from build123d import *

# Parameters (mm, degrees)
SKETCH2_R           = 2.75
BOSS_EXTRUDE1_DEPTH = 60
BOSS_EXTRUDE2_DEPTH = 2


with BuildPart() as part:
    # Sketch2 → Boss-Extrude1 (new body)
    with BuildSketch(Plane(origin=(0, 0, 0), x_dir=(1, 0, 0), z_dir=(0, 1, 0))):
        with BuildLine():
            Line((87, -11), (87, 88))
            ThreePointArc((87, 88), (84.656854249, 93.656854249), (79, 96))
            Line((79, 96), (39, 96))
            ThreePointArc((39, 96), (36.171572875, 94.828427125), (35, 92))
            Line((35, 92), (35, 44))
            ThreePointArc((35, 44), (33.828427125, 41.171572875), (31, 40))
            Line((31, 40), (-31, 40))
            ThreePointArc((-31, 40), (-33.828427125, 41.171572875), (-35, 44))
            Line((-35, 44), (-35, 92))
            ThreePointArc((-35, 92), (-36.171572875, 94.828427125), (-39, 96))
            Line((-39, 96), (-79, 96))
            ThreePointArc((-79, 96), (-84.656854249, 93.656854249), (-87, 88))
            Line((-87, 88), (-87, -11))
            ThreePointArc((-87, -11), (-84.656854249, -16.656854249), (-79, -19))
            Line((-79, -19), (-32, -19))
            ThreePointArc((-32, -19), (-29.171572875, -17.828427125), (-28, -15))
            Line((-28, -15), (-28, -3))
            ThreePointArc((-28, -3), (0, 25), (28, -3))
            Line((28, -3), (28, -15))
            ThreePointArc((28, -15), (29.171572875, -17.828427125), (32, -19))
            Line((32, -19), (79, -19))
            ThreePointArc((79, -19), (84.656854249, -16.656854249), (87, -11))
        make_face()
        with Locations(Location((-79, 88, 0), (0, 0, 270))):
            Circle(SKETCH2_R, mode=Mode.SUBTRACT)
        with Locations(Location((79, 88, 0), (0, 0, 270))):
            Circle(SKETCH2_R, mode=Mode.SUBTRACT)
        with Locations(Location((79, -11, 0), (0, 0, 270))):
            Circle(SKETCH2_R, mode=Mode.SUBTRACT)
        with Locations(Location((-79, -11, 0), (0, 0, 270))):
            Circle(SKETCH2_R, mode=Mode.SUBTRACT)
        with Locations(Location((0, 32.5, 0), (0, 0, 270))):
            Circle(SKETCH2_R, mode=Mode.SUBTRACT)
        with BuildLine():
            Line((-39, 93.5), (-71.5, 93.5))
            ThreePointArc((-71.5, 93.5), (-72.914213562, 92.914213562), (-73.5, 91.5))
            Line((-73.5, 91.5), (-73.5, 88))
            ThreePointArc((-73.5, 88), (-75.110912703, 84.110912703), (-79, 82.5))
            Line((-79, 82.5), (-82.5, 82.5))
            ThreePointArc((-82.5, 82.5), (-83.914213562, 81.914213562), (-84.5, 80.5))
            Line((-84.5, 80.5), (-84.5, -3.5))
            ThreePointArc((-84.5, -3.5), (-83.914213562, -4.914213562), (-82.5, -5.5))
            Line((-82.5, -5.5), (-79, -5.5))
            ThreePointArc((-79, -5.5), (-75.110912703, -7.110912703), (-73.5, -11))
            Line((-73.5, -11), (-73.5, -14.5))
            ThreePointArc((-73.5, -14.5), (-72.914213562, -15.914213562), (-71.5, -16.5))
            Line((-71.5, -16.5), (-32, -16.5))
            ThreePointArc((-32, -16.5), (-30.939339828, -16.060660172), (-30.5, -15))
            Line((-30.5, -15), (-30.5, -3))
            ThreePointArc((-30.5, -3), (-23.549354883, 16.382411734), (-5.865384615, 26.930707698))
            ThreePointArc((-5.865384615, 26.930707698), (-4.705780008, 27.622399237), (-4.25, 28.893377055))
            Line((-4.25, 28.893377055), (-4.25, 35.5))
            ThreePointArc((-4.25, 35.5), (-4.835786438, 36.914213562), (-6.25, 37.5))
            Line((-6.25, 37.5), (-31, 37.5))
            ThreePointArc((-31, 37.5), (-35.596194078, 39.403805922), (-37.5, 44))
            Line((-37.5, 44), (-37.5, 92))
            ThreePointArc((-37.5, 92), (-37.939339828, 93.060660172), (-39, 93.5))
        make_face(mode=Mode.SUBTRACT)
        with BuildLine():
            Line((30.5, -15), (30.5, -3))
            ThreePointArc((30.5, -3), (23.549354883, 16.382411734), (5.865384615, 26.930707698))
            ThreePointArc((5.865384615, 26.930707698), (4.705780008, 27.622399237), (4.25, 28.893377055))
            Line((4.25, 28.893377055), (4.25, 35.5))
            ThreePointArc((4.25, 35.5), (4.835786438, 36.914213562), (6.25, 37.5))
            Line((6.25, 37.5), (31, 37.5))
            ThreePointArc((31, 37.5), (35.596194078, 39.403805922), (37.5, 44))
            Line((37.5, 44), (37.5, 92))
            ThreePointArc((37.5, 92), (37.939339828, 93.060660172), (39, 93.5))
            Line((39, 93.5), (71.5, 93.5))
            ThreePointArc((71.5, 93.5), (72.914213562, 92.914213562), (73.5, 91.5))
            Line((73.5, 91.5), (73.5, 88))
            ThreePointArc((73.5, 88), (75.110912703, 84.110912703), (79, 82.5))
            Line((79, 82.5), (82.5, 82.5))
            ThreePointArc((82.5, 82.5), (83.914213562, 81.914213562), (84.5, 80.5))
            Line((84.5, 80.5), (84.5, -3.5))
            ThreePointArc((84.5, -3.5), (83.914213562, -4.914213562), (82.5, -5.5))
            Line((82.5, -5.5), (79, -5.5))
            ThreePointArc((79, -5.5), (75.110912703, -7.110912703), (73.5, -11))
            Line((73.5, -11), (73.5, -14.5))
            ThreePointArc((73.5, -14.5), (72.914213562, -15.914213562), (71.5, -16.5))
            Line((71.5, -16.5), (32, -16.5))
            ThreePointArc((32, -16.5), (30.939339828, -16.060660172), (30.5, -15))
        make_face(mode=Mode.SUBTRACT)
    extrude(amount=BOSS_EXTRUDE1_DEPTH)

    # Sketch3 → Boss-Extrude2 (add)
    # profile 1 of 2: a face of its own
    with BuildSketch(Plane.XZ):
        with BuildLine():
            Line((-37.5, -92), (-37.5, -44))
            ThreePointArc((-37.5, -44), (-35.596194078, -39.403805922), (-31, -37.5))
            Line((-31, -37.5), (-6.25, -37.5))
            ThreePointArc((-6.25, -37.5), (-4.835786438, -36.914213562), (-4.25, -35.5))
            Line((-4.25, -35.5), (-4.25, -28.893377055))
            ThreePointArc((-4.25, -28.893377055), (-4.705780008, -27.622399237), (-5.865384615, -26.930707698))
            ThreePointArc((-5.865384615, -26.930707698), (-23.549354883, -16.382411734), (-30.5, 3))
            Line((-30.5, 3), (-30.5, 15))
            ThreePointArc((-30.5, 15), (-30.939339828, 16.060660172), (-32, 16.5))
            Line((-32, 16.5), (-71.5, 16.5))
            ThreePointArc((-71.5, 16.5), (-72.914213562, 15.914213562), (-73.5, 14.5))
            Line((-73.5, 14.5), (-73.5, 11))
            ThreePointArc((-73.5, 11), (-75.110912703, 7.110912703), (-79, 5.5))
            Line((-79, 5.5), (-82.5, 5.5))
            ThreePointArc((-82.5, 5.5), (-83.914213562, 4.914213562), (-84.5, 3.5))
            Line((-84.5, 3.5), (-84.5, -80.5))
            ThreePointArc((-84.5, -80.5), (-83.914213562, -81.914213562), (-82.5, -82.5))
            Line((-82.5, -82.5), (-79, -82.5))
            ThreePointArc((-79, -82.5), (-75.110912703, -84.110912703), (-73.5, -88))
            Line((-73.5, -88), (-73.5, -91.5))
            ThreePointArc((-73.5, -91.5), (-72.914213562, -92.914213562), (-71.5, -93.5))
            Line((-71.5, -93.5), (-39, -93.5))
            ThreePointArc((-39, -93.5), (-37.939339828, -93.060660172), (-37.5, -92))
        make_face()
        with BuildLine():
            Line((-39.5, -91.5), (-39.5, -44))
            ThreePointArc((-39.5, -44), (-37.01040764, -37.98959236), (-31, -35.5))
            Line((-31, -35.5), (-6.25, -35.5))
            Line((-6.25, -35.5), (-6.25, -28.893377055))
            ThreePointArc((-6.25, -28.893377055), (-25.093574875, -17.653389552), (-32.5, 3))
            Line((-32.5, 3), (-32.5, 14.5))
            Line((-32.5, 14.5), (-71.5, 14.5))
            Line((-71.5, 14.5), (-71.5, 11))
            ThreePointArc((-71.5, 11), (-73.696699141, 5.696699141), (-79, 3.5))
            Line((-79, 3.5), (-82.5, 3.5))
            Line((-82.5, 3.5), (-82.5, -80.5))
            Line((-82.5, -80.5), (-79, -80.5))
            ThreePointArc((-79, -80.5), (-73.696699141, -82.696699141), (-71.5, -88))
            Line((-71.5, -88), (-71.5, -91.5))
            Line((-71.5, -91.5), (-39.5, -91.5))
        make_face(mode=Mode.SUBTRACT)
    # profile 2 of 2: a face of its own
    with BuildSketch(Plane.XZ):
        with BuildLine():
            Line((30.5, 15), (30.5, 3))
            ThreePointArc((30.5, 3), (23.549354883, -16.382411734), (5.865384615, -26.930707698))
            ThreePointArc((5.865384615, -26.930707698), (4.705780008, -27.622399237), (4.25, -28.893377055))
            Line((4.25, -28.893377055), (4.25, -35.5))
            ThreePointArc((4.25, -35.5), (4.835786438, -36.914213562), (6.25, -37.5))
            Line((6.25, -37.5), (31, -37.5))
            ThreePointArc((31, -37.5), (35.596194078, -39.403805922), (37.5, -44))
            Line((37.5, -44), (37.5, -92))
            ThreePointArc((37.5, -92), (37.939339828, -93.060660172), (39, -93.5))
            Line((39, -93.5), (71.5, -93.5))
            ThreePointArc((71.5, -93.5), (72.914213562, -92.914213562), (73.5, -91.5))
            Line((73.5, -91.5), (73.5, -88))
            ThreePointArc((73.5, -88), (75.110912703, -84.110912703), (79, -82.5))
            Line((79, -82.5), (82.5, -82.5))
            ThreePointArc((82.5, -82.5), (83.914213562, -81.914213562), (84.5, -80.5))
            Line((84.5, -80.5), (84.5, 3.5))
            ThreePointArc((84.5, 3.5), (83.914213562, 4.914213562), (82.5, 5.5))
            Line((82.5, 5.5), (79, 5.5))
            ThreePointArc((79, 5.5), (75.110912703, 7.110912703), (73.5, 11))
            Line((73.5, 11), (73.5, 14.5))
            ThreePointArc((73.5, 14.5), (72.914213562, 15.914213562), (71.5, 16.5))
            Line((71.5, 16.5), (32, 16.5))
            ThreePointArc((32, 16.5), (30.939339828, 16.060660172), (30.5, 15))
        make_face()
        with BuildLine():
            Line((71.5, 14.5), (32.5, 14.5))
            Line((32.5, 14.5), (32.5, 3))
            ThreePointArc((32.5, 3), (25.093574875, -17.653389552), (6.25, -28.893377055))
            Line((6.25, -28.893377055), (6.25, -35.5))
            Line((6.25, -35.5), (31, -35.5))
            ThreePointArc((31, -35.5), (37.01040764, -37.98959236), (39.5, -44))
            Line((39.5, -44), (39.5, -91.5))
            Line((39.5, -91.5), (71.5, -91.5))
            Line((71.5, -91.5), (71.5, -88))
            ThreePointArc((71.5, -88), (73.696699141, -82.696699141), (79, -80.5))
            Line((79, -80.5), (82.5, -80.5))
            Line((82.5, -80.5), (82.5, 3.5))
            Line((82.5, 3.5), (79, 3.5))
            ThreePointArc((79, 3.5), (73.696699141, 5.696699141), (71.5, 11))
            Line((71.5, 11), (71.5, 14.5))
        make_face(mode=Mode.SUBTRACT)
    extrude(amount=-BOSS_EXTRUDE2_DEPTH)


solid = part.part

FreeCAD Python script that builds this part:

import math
import FreeCAD as App
import Part
import Sketcher

doc = App.newDocument("Part")
body = doc.addObject("PartDesign::Body", "Body")

# Sketch on XZ plane
sketch1 = doc.addObject("Sketcher::SketchObject", "Sketch")
body.addObject(sketch1)
sketch1.AttachmentSupport = (doc.XZ_Plane, [""])
sketch1.MapMode = "FlatFace"
sketch1.addGeometry([
    Part.LineSegment(App.Vector(87, 11, 0), App.Vector(87, -88, 0)),  # 0
    Part.ArcOfCircle(Part.Circle(App.Vector(79, -88, 0), App.Vector(0, 0, 1), 8), math.radians(-90), math.radians(0)),  # 1
    Part.LineSegment(App.Vector(79, -96, 0), App.Vector(39, -96, 0)),  # 2
    Part.ArcOfCircle(Part.Circle(App.Vector(39, -92, 0), App.Vector(0, 0, 1), 4), math.radians(180), math.radians(270)),  # 3
    Part.LineSegment(App.Vector(35, -92, 0), App.Vector(35, -44, 0)),  # 4
    Part.ArcOfCircle(Part.Circle(App.Vector(31, -44, 0), App.Vector(0, 0, 1), 4), math.radians(0), math.radians(90)),  # 5
    Part.LineSegment(App.Vector(31, -40, 0), App.Vector(-31, -40, 0)),  # 6
    Part.ArcOfCircle(Part.Circle(App.Vector(-31, -44, 0), App.Vector(0, 0, 1), 4), math.radians(90), math.radians(180)),  # 7
    Part.LineSegment(App.Vector(-35, -44, 0), App.Vector(-35, -92, 0)),  # 8
    Part.ArcOfCircle(Part.Circle(App.Vector(-39, -92, 0), App.Vector(0, 0, 1), 4), math.radians(-90), math.radians(0)),  # 9
    Part.LineSegment(App.Vector(-39, -96, 0), App.Vector(-79, -96, 0)),  # 10
    Part.ArcOfCircle(Part.Circle(App.Vector(-79, -88, 0), App.Vector(0, 0, 1), 8), math.radians(-180), math.radians(-90)),  # 11
    Part.LineSegment(App.Vector(-87, -88, 0), App.Vector(-87, 11, 0)),  # 12
    Part.ArcOfCircle(Part.Circle(App.Vector(-79, 11, 0), App.Vector(0, 0, 1), 8), math.radians(90), math.radians(180)),  # 13
    Part.LineSegment(App.Vector(-79, 19, 0), App.Vector(-32, 19, 0)),  # 14
    Part.ArcOfCircle(Part.Circle(App.Vector(-32, 15, 0), App.Vector(0, 0, 1), 4), math.radians(0), math.radians(90)),  # 15
    Part.LineSegment(App.Vector(-28, 15, 0), App.Vector(-28, 3, 0)),  # 16
    Part.ArcOfCircle(Part.Circle(App.Vector(0, 3, 0), App.Vector(0, 0, 1), 28), math.radians(180), math.radians(360)),  # 17
    Part.LineSegment(App.Vector(28, 3, 0), App.Vector(28, 15, 0)),  # 18
    Part.ArcOfCircle(Part.Circle(App.Vector(32, 15, 0), App.Vector(0, 0, 1), 4), math.radians(90), math.radians(180)),  # 19
    Part.LineSegment(App.Vector(32, 19, 0), App.Vector(79, 19, 0)),  # 20
    Part.ArcOfCircle(Part.Circle(App.Vector(79, 11, 0), App.Vector(0, 0, 1), 8), math.radians(0), math.radians(90)),  # 21
    Part.Circle(App.Vector(-79, 11, 0), App.Vector(0, 0, 1), 2.8),  # 22
    Part.Circle(App.Vector(79, 11, 0), App.Vector(0, 0, 1), 2.8),  # 23
    Part.Circle(App.Vector(0, -32.5, 0), App.Vector(0, 0, 1), 2.8),  # 24
    Part.LineSegment(App.Vector(-71.5, -93.5, 0), App.Vector(-39, -93.5, 0)),  # 25
    Part.ArcOfCircle(Part.Circle(App.Vector(-39, -92, 0), App.Vector(0, 0, 1), 1.5), math.radians(-90), math.radians(0)),  # 26
    Part.LineSegment(App.Vector(-37.5, -92, 0), App.Vector(-37.5, -44, 0)),  # 27
    Part.ArcOfCircle(Part.Circle(App.Vector(-31, -44, 0), App.Vector(0, 0, 1), 6.5), math.radians(90), math.radians(180)),  # 28
    Part.LineSegment(App.Vector(-31, -37.5, 0), App.Vector(-6.2, -37.5, 0)),  # 29
    Part.ArcOfCircle(Part.Circle(App.Vector(-6.3, -35.5, 0), App.Vector(0, 0, 1), 2), math.radians(-90), math.radians(0)),  # 30
    Part.LineSegment(App.Vector(-4.2, -35.5, 0), App.Vector(-4.2, -28.9, 0)),  # 31
    Part.ArcOfCircle(Part.Circle(App.Vector(-6.3, -28.9, 0), App.Vector(0, 0, 1), 2), math.radians(0), math.radians(79)),  # 32
    Part.ArcOfCircle(Part.Circle(App.Vector(0, 3, 0), App.Vector(0, 0, 1), 30.5), math.radians(180), math.radians(259)),  # 33
    Part.LineSegment(App.Vector(-30.5, 3, 0), App.Vector(-30.5, 15, 0)),  # 34
    Part.ArcOfCircle(Part.Circle(App.Vector(-32, 15, 0), App.Vector(0, 0, 1), 1.5), math.radians(0), math.radians(90)),  # 35
    Part.LineSegment(App.Vector(-32, 16.5, 0), App.Vector(-71.5, 16.5, 0)),  # 36
    Part.ArcOfCircle(Part.Circle(App.Vector(-71.5, 14.5, 0), App.Vector(0, 0, 1), 2), math.radians(90), math.radians(180)),  # 37
    Part.LineSegment(App.Vector(-73.5, 14.5, 0), App.Vector(-73.5, 11, 0)),  # 38
    Part.ArcOfCircle(Part.Circle(App.Vector(-79, 11, 0), App.Vector(0, 0, 1), 5.5), math.radians(-90), math.radians(0)),  # 39
    Part.LineSegment(App.Vector(-79, 5.5, 0), App.Vector(-82.5, 5.5, 0)),  # 40
    Part.ArcOfCircle(Part.Circle(App.Vector(-82.5, 3.5, 0), App.Vector(0, 0, 1), 2), math.radians(90), math.radians(180)),  # 41
    Part.LineSegment(App.Vector(-84.5, 3.5, 0), App.Vector(-84.5, -80.5, 0)),  # 42
    Part.ArcOfCircle(Part.Circle(App.Vector(-82.5, -80.5, 0), App.Vector(0, 0, 1), 2), math.radians(-180), math.radians(-90)),  # 43
    Part.LineSegment(App.Vector(-82.5, -82.5, 0), App.Vector(-79, -82.5, 0)),  # 44
    Part.ArcOfCircle(Part.Circle(App.Vector(-79, -88, 0), App.Vector(0, 0, 1), 5.5), math.radians(0), math.radians(90)),  # 45
    Part.LineSegment(App.Vector(-73.5, -88, 0), App.Vector(-73.5, -91.5, 0)),  # 46
    Part.ArcOfCircle(Part.Circle(App.Vector(-71.5, -91.5, 0), App.Vector(0, 0, 1), 2), math.radians(-180), math.radians(-90)),  # 47
    Part.Circle(App.Vector(-79, -88, 0), App.Vector(0, 0, 1), 2.8),  # 48
    Part.ArcOfCircle(Part.Circle(App.Vector(32, 15, 0), App.Vector(0, 0, 1), 1.5), math.radians(90), math.radians(180)),  # 49
    Part.LineSegment(App.Vector(30.5, 15, 0), App.Vector(30.5, 3, 0)),  # 50
    Part.ArcOfCircle(Part.Circle(App.Vector(0, 3, 0), App.Vector(0, 0, 1), 30.5), math.radians(-79), math.radians(0)),  # 51
    Part.ArcOfCircle(Part.Circle(App.Vector(6.3, -28.9, 0), App.Vector(0, 0, 1), 2), math.radians(101), math.radians(180)),  # 52
    Part.LineSegment(App.Vector(4.2, -28.9, 0), App.Vector(4.2, -35.5, 0)),  # 53
    Part.ArcOfCircle(Part.Circle(App.Vector(6.3, -35.5, 0), App.Vector(0, 0, 1), 2), math.radians(-180), math.radians(-90)),  # 54
    Part.LineSegment(App.Vector(6.2, -37.5, 0), App.Vector(31, -37.5, 0)),  # 55
    Part.ArcOfCircle(Part.Circle(App.Vector(31, -44, 0), App.Vector(0, 0, 1), 6.5), math.radians(0), math.radians(90)),  # 56
    Part.LineSegment(App.Vector(37.5, -44, 0), App.Vector(37.5, -92, 0)),  # 57
    Part.ArcOfCircle(Part.Circle(App.Vector(39, -92, 0), App.Vector(0, 0, 1), 1.5), math.radians(180), math.radians(270)),  # 58
    Part.LineSegment(App.Vector(39, -93.5, 0), App.Vector(71.5, -93.5, 0)),  # 59
    Part.ArcOfCircle(Part.Circle(App.Vector(71.5, -91.5, 0), App.Vector(0, 0, 1), 2), math.radians(-90), math.radians(0)),  # 60
    Part.LineSegment(App.Vector(73.5, -91.5, 0), App.Vector(73.5, -88, 0)),  # 61
    Part.ArcOfCircle(Part.Circle(App.Vector(79, -88, 0), App.Vector(0, 0, 1), 5.5), math.radians(90), math.radians(180)),  # 62
    Part.LineSegment(App.Vector(79, -82.5, 0), App.Vector(82.5, -82.5, 0)),  # 63
    Part.ArcOfCircle(Part.Circle(App.Vector(82.5, -80.5, 0), App.Vector(0, 0, 1), 2), math.radians(-90), math.radians(0)),  # 64
    Part.LineSegment(App.Vector(84.5, -80.5, 0), App.Vector(84.5, 3.5, 0)),  # 65
    Part.ArcOfCircle(Part.Circle(App.Vector(82.5, 3.5, 0), App.Vector(0, 0, 1), 2), math.radians(0), math.radians(90)),  # 66
    Part.LineSegment(App.Vector(82.5, 5.5, 0), App.Vector(79, 5.5, 0)),  # 67
    Part.ArcOfCircle(Part.Circle(App.Vector(79, 11, 0), App.Vector(0, 0, 1), 5.5), math.radians(180), math.radians(270)),  # 68
    Part.LineSegment(App.Vector(73.5, 11, 0), App.Vector(73.5, 14.5, 0)),  # 69
    Part.ArcOfCircle(Part.Circle(App.Vector(71.5, 14.5, 0), App.Vector(0, 0, 1), 2), math.radians(0), math.radians(90)),  # 70
    Part.LineSegment(App.Vector(71.5, 16.5, 0), App.Vector(32, 16.5, 0)),  # 71
    Part.Circle(App.Vector(79, -88, 0), App.Vector(0, 0, 1), 2.8),  # 72
], False)
sketch1.addConstraint([
    Sketcher.Constraint("Tangent", 0, 2, 1, 2),
    Sketcher.Constraint("Tangent", 1, 1, 2, 1),
    Sketcher.Constraint("Tangent", 2, 2, 3, 2),
    Sketcher.Constraint("Tangent", 3, 1, 4, 1),
    Sketcher.Constraint("Tangent", 4, 2, 5, 1),
    Sketcher.Constraint("Tangent", 5, 2, 6, 1),
    Sketcher.Constraint("Tangent", 6, 2, 7, 1),
    Sketcher.Constraint("Tangent", 7, 2, 8, 1),
    Sketcher.Constraint("Tangent", 8, 2, 9, 2),
    Sketcher.Constraint("Tangent", 9, 1, 10, 1),
    Sketcher.Constraint("Tangent", 10, 2, 11, 2),
    Sketcher.Constraint("Tangent", 11, 1, 12, 1),
    Sketcher.Constraint("Tangent", 12, 2, 13, 2),
    Sketcher.Constraint("Tangent", 13, 1, 14, 1),
    Sketcher.Constraint("Tangent", 14, 2, 15, 2),
    Sketcher.Constraint("Tangent", 15, 1, 16, 1),
    Sketcher.Constraint("Tangent", 16, 2, 17, 1),
    Sketcher.Constraint("Tangent", 17, 2, 18, 1),
    Sketcher.Constraint("Tangent", 18, 2, 19, 2),
    Sketcher.Constraint("Tangent", 19, 1, 20, 1),
    Sketcher.Constraint("Tangent", 20, 2, 21, 2),
    Sketcher.Constraint("Tangent", 21, 1, 0, 1),
    Sketcher.Constraint("Tangent", 25, 2, 26, 1),
    Sketcher.Constraint("Tangent", 26, 2, 27, 1),
    Sketcher.Constraint("Tangent", 27, 2, 28, 2),
    Sketcher.Constraint("Tangent", 28, 1, 29, 1),
    Sketcher.Constraint("Tangent", 29, 2, 30, 1),
    Sketcher.Constraint("Tangent", 30, 2, 31, 1),
    Sketcher.Constraint("Tangent", 31, 2, 32, 1),
    Sketcher.Constraint("Tangent", 32, 2, 33, 2),
    Sketcher.Constraint("Tangent", 33, 1, 34, 1),
    Sketcher.Constraint("Tangent", 34, 2, 35, 1),
    Sketcher.Constraint("Tangent", 35, 2, 36, 1),
    Sketcher.Constraint("Tangent", 36, 2, 37, 1),
    Sketcher.Constraint("Tangent", 37, 2, 38, 1),
    Sketcher.Constraint("Tangent", 38, 2, 39, 2),
    Sketcher.Constraint("Tangent", 39, 1, 40, 1),
    Sketcher.Constraint("Tangent", 40, 2, 41, 1),
    Sketcher.Constraint("Tangent", 41, 2, 42, 1),
    Sketcher.Constraint("Tangent", 42, 2, 43, 1),
    Sketcher.Constraint("Tangent", 43, 2, 44, 1),
    Sketcher.Constraint("Tangent", 44, 2, 45, 2),
    Sketcher.Constraint("Tangent", 45, 1, 46, 1),
    Sketcher.Constraint("Tangent", 46, 2, 47, 1),
    Sketcher.Constraint("Tangent", 47, 2, 25, 1),
    Sketcher.Constraint("Tangent", 49, 2, 50, 1),
    Sketcher.Constraint("Tangent", 50, 2, 51, 2),
    Sketcher.Constraint("Tangent", 51, 1, 52, 1),
    Sketcher.Constraint("Tangent", 52, 2, 53, 1),
    Sketcher.Constraint("Tangent", 53, 2, 54, 1),
    Sketcher.Constraint("Tangent", 54, 2, 55, 1),
    Sketcher.Constraint("Tangent", 55, 2, 56, 2),
    Sketcher.Constraint("Tangent", 56, 1, 57, 1),
    Sketcher.Constraint("Tangent", 57, 2, 58, 1),
    Sketcher.Constraint("Tangent", 58, 2, 59, 1),
    Sketcher.Constraint("Tangent", 59, 2, 60, 1),
    Sketcher.Constraint("Tangent", 60, 2, 61, 1),
    Sketcher.Constraint("Tangent", 61, 2, 62, 2),
    Sketcher.Constraint("Tangent", 62, 1, 63, 1),
    Sketcher.Constraint("Tangent", 63, 2, 64, 1),
    Sketcher.Constraint("Tangent", 64, 2, 65, 1),
    Sketcher.Constraint("Tangent", 65, 2, 66, 1),
    Sketcher.Constraint("Tangent", 66, 2, 67, 1),
    Sketcher.Constraint("Tangent", 67, 2, 68, 2),
    Sketcher.Constraint("Tangent", 68, 1, 69, 1),
    Sketcher.Constraint("Tangent", 69, 2, 70, 1),
    Sketcher.Constraint("Tangent", 70, 2, 71, 1),
    Sketcher.Constraint("Tangent", 71, 2, 49, 1),
    Sketcher.Constraint("Vertical", 0),
    Sketcher.Constraint("Horizontal", 2),
    Sketcher.Constraint("Vertical", 4),
    Sketcher.Constraint("Horizontal", 6),
    Sketcher.Constraint("Vertical", 8),
    Sketcher.Constraint("Horizontal", 10),
    Sketcher.Constraint("Vertical", 12),
    Sketcher.Constraint("Horizontal", 14),
    Sketcher.Constraint("Vertical", 16),
    Sketcher.Constraint("Vertical", 18),
    Sketcher.Constraint("Horizontal", 20),
    Sketcher.Constraint("Horizontal", 25),
    Sketcher.Constraint("Vertical", 27),
    Sketcher.Constraint("Horizontal", 29),
    Sketcher.Constraint("Vertical", 31),
    Sketcher.Constraint("Vertical", 34),
    Sketcher.Constraint("Horizontal", 36),
    Sketcher.Constraint("Vertical", 38),
    Sketcher.Constraint("Horizontal", 40),
    Sketcher.Constraint("Vertical", 42),
    Sketcher.Constraint("Horizontal", 44),
    Sketcher.Constraint("Vertical", 46),
    Sketcher.Constraint("Vertical", 50),
    Sketcher.Constraint("Vertical", 53),
    Sketcher.Constraint("Horizontal", 55),
    Sketcher.Constraint("Vertical", 57),
    Sketcher.Constraint("Horizontal", 59),
    Sketcher.Constraint("Vertical", 61),
    Sketcher.Constraint("Horizontal", 63),
    Sketcher.Constraint("Vertical", 65),
    Sketcher.Constraint("Horizontal", 67),
    Sketcher.Constraint("Vertical", 69),
    Sketcher.Constraint("Horizontal", 71),
    Sketcher.Constraint("Coincident", 22, 3, 13, 3),
    Sketcher.Constraint("Coincident", 23, 3, 21, 3),
    Sketcher.Constraint("Coincident", 26, 3, 9, 3),
    Sketcher.Constraint("Coincident", 28, 3, 7, 3),
    Sketcher.Constraint("Coincident", 33, 3, 17, 3),
    Sketcher.Constraint("Coincident", 35, 3, 15, 3),
    Sketcher.Constraint("Coincident", 39, 3, 13, 3),
    Sketcher.Constraint("Coincident", 45, 3, 11, 3),
    Sketcher.Constraint("Coincident", 48, 3, 11, 3),
    Sketcher.Constraint("Coincident", 49, 3, 19, 3),
    Sketcher.Constraint("Coincident", 51, 3, 17, 3),
    Sketcher.Constraint("Coincident", 56, 3, 5, 3),
    Sketcher.Constraint("Coincident", 58, 3, 3, 3),
    Sketcher.Constraint("Coincident", 62, 3, 1, 3),
    Sketcher.Constraint("Coincident", 68, 3, 21, 3),
    Sketcher.Constraint("Coincident", 72, 3, 1, 3),
    Sketcher.Constraint("Equal", 3, 5),
    Sketcher.Constraint("Equal", 5, 7),
    Sketcher.Constraint("Equal", 7, 9),
    Sketcher.Constraint("Equal", 1, 11),
    Sketcher.Constraint("Equal", 11, 13),
    Sketcher.Constraint("Equal", 9, 15),
    Sketcher.Constraint("Equal", 15, 19),
    Sketcher.Constraint("Equal", 13, 21),
    Sketcher.Constraint("Equal", 22, 23),
    Sketcher.Constraint("Equal", 23, 24),
    Sketcher.Constraint("Equal", 30, 32),
    Sketcher.Constraint("Equal", 26, 35),
    Sketcher.Constraint("Equal", 32, 37),
    Sketcher.Constraint("Equal", 37, 41),
    Sketcher.Constraint("Equal", 41, 43),
    Sketcher.Constraint("Equal", 39, 45),
    Sketcher.Constraint("Equal", 43, 47),
    Sketcher.Constraint("Equal", 24, 48),
    Sketcher.Constraint("Equal", 35, 49),
    Sketcher.Constraint("Equal", 47, 52),
    Sketcher.Constraint("Equal", 52, 54),
    Sketcher.Constraint("Equal", 28, 56),
    Sketcher.Constraint("Equal", 54, 60),
    Sketcher.Constraint("Equal", 45, 62),
    Sketcher.Constraint("Equal", 60, 64),
    Sketcher.Constraint("Equal", 64, 66),
    Sketcher.Constraint("Equal", 62, 68),
    Sketcher.Constraint("Equal", 66, 70),
    Sketcher.Constraint("Equal", 48, 72),
    Sketcher.Constraint("Symmetric", 3, 3, 9, 3, -2),
    Sketcher.Constraint("Symmetric", 15, 3, 19, 3, -2),
    Sketcher.Constraint("PointOnObject", 24, 3, -2),
    Sketcher.Constraint("Horizontal", 32, 3, 52, 3),
    Sketcher.Constraint("Equal", 2, 10),
    Sketcher.Constraint("Equal", 44, 63),
    Sketcher.Constraint("Equal", 67, 38),
    Sketcher.Constraint("Radius", 1, 8.0),
    Sketcher.Constraint("Radius", 3, 4.0),
    Sketcher.Constraint("Radius", 17, 28.0),
    Sketcher.Constraint("Radius", 30, 2.0),
    Sketcher.Constraint("Diameter", 22, 5.5),
    Sketcher.Constraint("Radius", 26, 1.5),
    Sketcher.Constraint("Radius", 39, 5.5),
    Sketcher.Constraint("DistanceX", 2, 2, 2, 1, 40.0),
    Sketcher.Constraint("DistanceX", 6, 2, 6, 1, 62.0),
    Sketcher.Constraint("DistanceY", 0, 2, 0, 1, 99.0),
    Sketcher.Constraint("DistanceY", 4, 1, 4, 2, 48.0),
    Sketcher.Constraint("DistanceY", 16, 2, 16, 1, 12.0),
    Sketcher.Constraint("DistanceY", 1, 3, -1, 1, 88.0),
    Sketcher.Constraint("DistanceX", 29, 1, 29, 2, 24.75),
    Sketcher.Constraint("DistanceY", 24, 3, -1, 1, 32.5),
])
pad1 = doc.addObject("PartDesign::Pad", "Pad")
body.addObject(pad1)
pad1.Profile = sketch1
pad1.Length = 60
pad1.Reversed = True

# Sketch on XZ plane
sketch2 = doc.addObject("Sketcher::SketchObject", "Sketch001")
body.addObject(sketch2)
sketch2.AttachmentSupport = (doc.XZ_Plane, [""])
sketch2.MapMode = "FlatFace"
sketch2.addGeometry([
    Part.LineSegment(App.Vector(-37.5, -92, 0), App.Vector(-37.5, -44, 0)),  # 0
    Part.ArcOfCircle(Part.Circle(App.Vector(-31, -44, 0), App.Vector(0, 0, 1), 6.5), math.radians(90), math.radians(180)),  # 1
    Part.LineSegment(App.Vector(-31, -37.5, 0), App.Vector(-6.2, -37.5, 0)),  # 2
    Part.ArcOfCircle(Part.Circle(App.Vector(-6.3, -35.5, 0), App.Vector(0, 0, 1), 2), math.radians(-90), math.radians(0)),  # 3
    Part.LineSegment(App.Vector(-4.2, -35.5, 0), App.Vector(-4.2, -28.9, 0)),  # 4
    Part.ArcOfCircle(Part.Circle(App.Vector(-6.3, -28.9, 0), App.Vector(0, 0, 1), 2), math.radians(0), math.radians(79)),  # 5
    Part.ArcOfCircle(Part.Circle(App.Vector(0, 3, 0), App.Vector(0, 0, 1), 30.5), math.radians(180), math.radians(259)),  # 6
    Part.LineSegment(App.Vector(-30.5, 3, 0), App.Vector(-30.5, 15, 0)),  # 7
    Part.ArcOfCircle(Part.Circle(App.Vector(-32, 15, 0), App.Vector(0, 0, 1), 1.5), math.radians(0), math.radians(90)),  # 8
    Part.LineSegment(App.Vector(-32, 16.5, 0), App.Vector(-71.5, 16.5, 0)),  # 9
    Part.ArcOfCircle(Part.Circle(App.Vector(-71.5, 14.5, 0), App.Vector(0, 0, 1), 2), math.radians(90), math.radians(180)),  # 10
    Part.LineSegment(App.Vector(-73.5, 14.5, 0), App.Vector(-73.5, 11, 0)),  # 11
    Part.ArcOfCircle(Part.Circle(App.Vector(-79, 11, 0), App.Vector(0, 0, 1), 5.5), math.radians(-90), math.radians(0)),  # 12
    Part.LineSegment(App.Vector(-79, 5.5, 0), App.Vector(-82.5, 5.5, 0)),  # 13
    Part.ArcOfCircle(Part.Circle(App.Vector(-82.5, 3.5, 0), App.Vector(0, 0, 1), 2), math.radians(90), math.radians(180)),  # 14
    Part.LineSegment(App.Vector(-84.5, 3.5, 0), App.Vector(-84.5, -80.5, 0)),  # 15
    Part.ArcOfCircle(Part.Circle(App.Vector(-82.5, -80.5, 0), App.Vector(0, 0, 1), 2), math.radians(-180), math.radians(-90)),  # 16
    Part.LineSegment(App.Vector(-82.5, -82.5, 0), App.Vector(-79, -82.5, 0)),  # 17
    Part.ArcOfCircle(Part.Circle(App.Vector(-79, -88, 0), App.Vector(0, 0, 1), 5.5), math.radians(0), math.radians(90)),  # 18
    Part.LineSegment(App.Vector(-73.5, -88, 0), App.Vector(-73.5, -91.5, 0)),  # 19
    Part.ArcOfCircle(Part.Circle(App.Vector(-71.5, -91.5, 0), App.Vector(0, 0, 1), 2), math.radians(-180), math.radians(-90)),  # 20
    Part.LineSegment(App.Vector(-71.5, -93.5, 0), App.Vector(-39, -93.5, 0)),  # 21
    Part.ArcOfCircle(Part.Circle(App.Vector(-39, -92, 0), App.Vector(0, 0, 1), 1.5), math.radians(-90), math.radians(0)),  # 22
    Part.LineSegment(App.Vector(-39.5, -44, 0), App.Vector(-39.5, -91.5, 0)),  # 23
    Part.LineSegment(App.Vector(-39.5, -91.5, 0), App.Vector(-71.5, -91.5, 0)),  # 24
    Part.LineSegment(App.Vector(-71.5, -91.5, 0), App.Vector(-71.5, -88, 0)),  # 25
    Part.ArcOfCircle(Part.Circle(App.Vector(-79, -88, 0), App.Vector(0, 0, 1), 7.5), math.radians(0), math.radians(90)),  # 26
    Part.LineSegment(App.Vector(-79, -80.5, 0), App.Vector(-82.5, -80.5, 0)),  # 27
    Part.LineSegment(App.Vector(-82.5, -80.5, 0), App.Vector(-82.5, 3.5, 0)),  # 28
    Part.LineSegment(App.Vector(-82.5, 3.5, 0), App.Vector(-79, 3.5, 0)),  # 29
    Part.ArcOfCircle(Part.Circle(App.Vector(-79, 11, 0), App.Vector(0, 0, 1), 7.5), math.radians(-90), math.radians(0)),  # 30
    Part.LineSegment(App.Vector(-71.5, 11, 0), App.Vector(-71.5, 14.5, 0)),  # 31
    Part.LineSegment(App.Vector(-71.5, 14.5, 0), App.Vector(-32.5, 14.5, 0)),  # 32
    Part.LineSegment(App.Vector(-32.5, 14.5, 0), App.Vector(-32.5, 3, 0)),  # 33
    Part.ArcOfCircle(Part.Circle(App.Vector(0, 3, 0), App.Vector(0, 0, 1), 32.5), math.radians(180), math.radians(259)),  # 34
    Part.LineSegment(App.Vector(-6.2, -28.9, 0), App.Vector(-6.2, -35.5, 0)),  # 35
    Part.LineSegment(App.Vector(-6.2, -35.5, 0), App.Vector(-31, -35.5, 0)),  # 36
    Part.ArcOfCircle(Part.Circle(App.Vector(-31, -44, 0), App.Vector(0, 0, 1), 8.5), math.radians(90), math.radians(180)),  # 37
    Part.LineSegment(App.Vector(30.5, 15, 0), App.Vector(30.5, 3, 0)),  # 38
    Part.ArcOfCircle(Part.Circle(App.Vector(0, 3, 0), App.Vector(0, 0, 1), 30.5), math.radians(-79), math.radians(0)),  # 39
    Part.ArcOfCircle(Part.Circle(App.Vector(6.3, -28.9, 0), App.Vector(0, 0, 1), 2), math.radians(101), math.radians(180)),  # 40
    Part.LineSegment(App.Vector(4.2, -28.9, 0), App.Vector(4.2, -35.5, 0)),  # 41
    Part.ArcOfCircle(Part.Circle(App.Vector(6.3, -35.5, 0), App.Vector(0, 0, 1), 2), math.radians(-180), math.radians(-90)),  # 42
    Part.LineSegment(App.Vector(6.2, -37.5, 0), App.Vector(31, -37.5, 0)),  # 43
    Part.ArcOfCircle(Part.Circle(App.Vector(31, -44, 0), App.Vector(0, 0, 1), 6.5), math.radians(0), math.radians(90)),  # 44
    Part.LineSegment(App.Vector(37.5, -44, 0), App.Vector(37.5, -92, 0)),  # 45
    Part.ArcOfCircle(Part.Circle(App.Vector(39, -92, 0), App.Vector(0, 0, 1), 1.5), math.radians(180), math.radians(270)),  # 46
    Part.LineSegment(App.Vector(39, -93.5, 0), App.Vector(71.5, -93.5, 0)),  # 47
    Part.ArcOfCircle(Part.Circle(App.Vector(71.5, -91.5, 0), App.Vector(0, 0, 1), 2), math.radians(-90), math.radians(0)),  # 48
    Part.LineSegment(App.Vector(73.5, -91.5, 0), App.Vector(73.5, -88, 0)),  # 49
    Part.ArcOfCircle(Part.Circle(App.Vector(79, -88, 0), App.Vector(0, 0, 1), 5.5), math.radians(90), math.radians(180)),  # 50
    Part.LineSegment(App.Vector(79, -82.5, 0), App.Vector(82.5, -82.5, 0)),  # 51
    Part.ArcOfCircle(Part.Circle(App.Vector(82.5, -80.5, 0), App.Vector(0, 0, 1), 2), math.radians(-90), math.radians(0)),  # 52
    Part.LineSegment(App.Vector(84.5, -80.5, 0), App.Vector(84.5, 3.5, 0)),  # 53
    Part.ArcOfCircle(Part.Circle(App.Vector(82.5, 3.5, 0), App.Vector(0, 0, 1), 2), math.radians(0), math.radians(90)),  # 54
    Part.LineSegment(App.Vector(82.5, 5.5, 0), App.Vector(79, 5.5, 0)),  # 55
    Part.ArcOfCircle(Part.Circle(App.Vector(79, 11, 0), App.Vector(0, 0, 1), 5.5), math.radians(180), math.radians(270)),  # 56
    Part.LineSegment(App.Vector(73.5, 11, 0), App.Vector(73.5, 14.5, 0)),  # 57
    Part.ArcOfCircle(Part.Circle(App.Vector(71.5, 14.5, 0), App.Vector(0, 0, 1), 2), math.radians(0), math.radians(90)),  # 58
    Part.LineSegment(App.Vector(71.5, 16.5, 0), App.Vector(32, 16.5, 0)),  # 59
    Part.ArcOfCircle(Part.Circle(App.Vector(32, 15, 0), App.Vector(0, 0, 1), 1.5), math.radians(90), math.radians(180)),  # 60
    Part.LineSegment(App.Vector(32.5, 14.5, 0), App.Vector(71.5, 14.5, 0)),  # 61
    Part.LineSegment(App.Vector(71.5, 14.5, 0), App.Vector(71.5, 11, 0)),  # 62
    Part.ArcOfCircle(Part.Circle(App.Vector(79, 11, 0), App.Vector(0, 0, 1), 7.5), math.radians(180), math.radians(270)),  # 63
    Part.LineSegment(App.Vector(79, 3.5, 0), App.Vector(82.5, 3.5, 0)),  # 64
    Part.LineSegment(App.Vector(82.5, 3.5, 0), App.Vector(82.5, -80.5, 0)),  # 65
    Part.LineSegment(App.Vector(82.5, -80.5, 0), App.Vector(79, -80.5, 0)),  # 66
    Part.ArcOfCircle(Part.Circle(App.Vector(79, -88, 0), App.Vector(0, 0, 1), 7.5), math.radians(90), math.radians(180)),  # 67
    Part.LineSegment(App.Vector(71.5, -88, 0), App.Vector(71.5, -91.5, 0)),  # 68
    Part.LineSegment(App.Vector(71.5, -91.5, 0), App.Vector(39.5, -91.5, 0)),  # 69
    Part.LineSegment(App.Vector(39.5, -91.5, 0), App.Vector(39.5, -44, 0)),  # 70
    Part.ArcOfCircle(Part.Circle(App.Vector(31, -44, 0), App.Vector(0, 0, 1), 8.5), math.radians(0), math.radians(90)),  # 71
    Part.LineSegment(App.Vector(31, -35.5, 0), App.Vector(6.2, -35.5, 0)),  # 72
    Part.LineSegment(App.Vector(6.2, -35.5, 0), App.Vector(6.2, -28.9, 0)),  # 73
    Part.ArcOfCircle(Part.Circle(App.Vector(0, 3, 0), App.Vector(0, 0, 1), 32.5), math.radians(-79), math.radians(0)),  # 74
    Part.LineSegment(App.Vector(32.5, 3, 0), App.Vector(32.5, 14.5, 0)),  # 75
], False)
sketch2.addConstraint([
    Sketcher.Constraint("Tangent", 0, 2, 1, 2),
    Sketcher.Constraint("Tangent", 1, 1, 2, 1),
    Sketcher.Constraint("Tangent", 2, 2, 3, 1),
    Sketcher.Constraint("Tangent", 3, 2, 4, 1),
    Sketcher.Constraint("Tangent", 4, 2, 5, 1),
    Sketcher.Constraint("Tangent", 5, 2, 6, 2),
    Sketcher.Constraint("Tangent", 6, 1, 7, 1),
    Sketcher.Constraint("Tangent", 7, 2, 8, 1),
    Sketcher.Constraint("Tangent", 8, 2, 9, 1),
    Sketcher.Constraint("Tangent", 9, 2, 10, 1),
    Sketcher.Constraint("Tangent", 10, 2, 11, 1),
    Sketcher.Constraint("Tangent", 11, 2, 12, 2),
    Sketcher.Constraint("Tangent", 12, 1, 13, 1),
    Sketcher.Constraint("Tangent", 13, 2, 14, 1),
    Sketcher.Constraint("Tangent", 14, 2, 15, 1),
    Sketcher.Constraint("Tangent", 15, 2, 16, 1),
    Sketcher.Constraint("Tangent", 16, 2, 17, 1),
    Sketcher.Constraint("Tangent", 17, 2, 18, 2),
    Sketcher.Constraint("Tangent", 18, 1, 19, 1),
    Sketcher.Constraint("Tangent", 19, 2, 20, 1),
    Sketcher.Constraint("Tangent", 20, 2, 21, 1),
    Sketcher.Constraint("Tangent", 21, 2, 22, 1),
    Sketcher.Constraint("Tangent", 22, 2, 0, 1),
    Sketcher.Constraint("Coincident", 23, 2, 24, 1),
    Sketcher.Constraint("Coincident", 24, 2, 25, 1),
    Sketcher.Constraint("Tangent", 25, 2, 26, 1),
    Sketcher.Constraint("Tangent", 26, 2, 27, 1),
    Sketcher.Constraint("Coincident", 27, 2, 28, 1),
    Sketcher.Constraint("Coincident", 28, 2, 29, 1),
    Sketcher.Constraint("Tangent", 29, 2, 30, 1),
    Sketcher.Constraint("Tangent", 30, 2, 31, 1),
    Sketcher.Constraint("Coincident", 31, 2, 32, 1),
    Sketcher.Constraint("Coincident", 32, 2, 33, 1),
    Sketcher.Constraint("Tangent", 33, 2, 34, 1),
    Sketcher.Constraint("Coincident", 34, 2, 35, 1),
    Sketcher.Constraint("Coincident", 35, 2, 36, 1),
    Sketcher.Constraint("Tangent", 36, 2, 37, 1),
    Sketcher.Constraint("Tangent", 37, 2, 23, 1),
    Sketcher.Constraint("Tangent", 38, 2, 39, 2),
    Sketcher.Constraint("Tangent", 39, 1, 40, 1),
    Sketcher.Constraint("Tangent", 40, 2, 41, 1),
    Sketcher.Constraint("Tangent", 41, 2, 42, 1),
    Sketcher.Constraint("Tangent", 42, 2, 43, 1),
    Sketcher.Constraint("Tangent", 43, 2, 44, 2),
    Sketcher.Constraint("Tangent", 44, 1, 45, 1),
    Sketcher.Constraint("Tangent", 45, 2, 46, 1),
    Sketcher.Constraint("Tangent", 46, 2, 47, 1),
    Sketcher.Constraint("Tangent", 47, 2, 48, 1),
    Sketcher.Constraint("Tangent", 48, 2, 49, 1),
    Sketcher.Constraint("Tangent", 49, 2, 50, 2),
    Sketcher.Constraint("Tangent", 50, 1, 51, 1),
    Sketcher.Constraint("Tangent", 51, 2, 52, 1),
    Sketcher.Constraint("Tangent", 52, 2, 53, 1),
    Sketcher.Constraint("Tangent", 53, 2, 54, 1),
    Sketcher.Constraint("Tangent", 54, 2, 55, 1),
    Sketcher.Constraint("Tangent", 55, 2, 56, 2),
    Sketcher.Constraint("Tangent", 56, 1, 57, 1),
    Sketcher.Constraint("Tangent", 57, 2, 58, 1),
    Sketcher.Constraint("Tangent", 58, 2, 59, 1),
    Sketcher.Constraint("Tangent", 59, 2, 60, 1),
    Sketcher.Constraint("Tangent", 60, 2, 38, 1),
    Sketcher.Constraint("Coincident", 61, 2, 62, 1),
    Sketcher.Constraint("Tangent", 62, 2, 63, 1),
    Sketcher.Constraint("Tangent", 63, 2, 64, 1),
    Sketcher.Constraint("Coincident", 64, 2, 65, 1),
    Sketcher.Constraint("Coincident", 65, 2, 66, 1),
    Sketcher.Constraint("Tangent", 66, 2, 67, 1),
    Sketcher.Constraint("Tangent", 67, 2, 68, 1),
    Sketcher.Constraint("Coincident", 68, 2, 69, 1),
    Sketcher.Constraint("Coincident", 69, 2, 70, 1),
    Sketcher.Constraint("Tangent", 70, 2, 71, 1),
    Sketcher.Constraint("Tangent", 71, 2, 72, 1),
    Sketcher.Constraint("Coincident", 72, 2, 73, 1),
    Sketcher.Constraint("Coincident", 73, 2, 74, 1),
    Sketcher.Constraint("Tangent", 74, 2, 75, 1),
    Sketcher.Constraint("Coincident", 75, 2, 61, 1),
    Sketcher.Constraint("Vertical", 0),
    Sketcher.Constraint("Horizontal", 2),
    Sketcher.Constraint("Vertical", 4),
    Sketcher.Constraint("Vertical", 7),
    Sketcher.Constraint("Horizontal", 9),
    Sketcher.Constraint("Vertical", 11),
    Sketcher.Constraint("Horizontal", 13),
    Sketcher.Constraint("Vertical", 15),
    Sketcher.Constraint("Horizontal", 17),
    Sketcher.Constraint("Vertical", 19),
    Sketcher.Constraint("Horizontal", 21),
    Sketcher.Constraint("Vertical", 23),
    Sketcher.Constraint("Horizontal", 24),
    Sketcher.Constraint("Vertical", 25),
    Sketcher.Constraint("Horizontal", 27),
    Sketcher.Constraint("Vertical", 28),
    Sketcher.Constraint("Horizontal", 29),
    Sketcher.Constraint("Vertical", 31),
    Sketcher.Constraint("Horizontal", 32),
    Sketcher.Constraint("Vertical", 33),
    Sketcher.Constraint("Vertical", 35),
    Sketcher.Constraint("Horizontal", 36),
    Sketcher.Constraint("Vertical", 38),
    Sketcher.Constraint("Vertical", 41),
    Sketcher.Constraint("Horizontal", 43),
    Sketcher.Constraint("Vertical", 45),
    Sketcher.Constraint("Horizontal", 47),
    Sketcher.Constraint("Vertical", 49),
    Sketcher.Constraint("Horizontal", 51),
    Sketcher.Constraint("Vertical", 53),
    Sketcher.Constraint("Horizontal", 55),
    Sketcher.Constraint("Vertical", 57),
    Sketcher.Constraint("Horizontal", 59),
    Sketcher.Constraint("Horizontal", 61),
    Sketcher.Constraint("Vertical", 62),
    Sketcher.Constraint("Horizontal", 64),
    Sketcher.Constraint("Vertical", 65),
    Sketcher.Constraint("Horizontal", 66),
    Sketcher.Constraint("Vertical", 68),
    Sketcher.Constraint("Horizontal", 69),
    Sketcher.Constraint("Vertical", 70),
    Sketcher.Constraint("Horizontal", 72),
    Sketcher.Constraint("Vertical", 73),
    Sketcher.Constraint("Vertical", 75),
    Sketcher.Constraint("Coincident", 26, 3, 18, 3),
    Sketcher.Constraint("Coincident", 30, 3, 12, 3),
    Sketcher.Constraint("Coincident", 34, 3, 6, 3),
    Sketcher.Constraint("Coincident", 37, 3, 1, 3),
    Sketcher.Constraint("Coincident", 39, 3, 6, 3),
    Sketcher.Constraint("Coincident", 63, 3, 56, 3),
    Sketcher.Constraint("Coincident", 67, 3, 50, 3),
    Sketcher.Constraint("Coincident", 71, 3, 44, 3),
    Sketcher.Constraint("Coincident", 74, 3, 6, 3),
    Sketcher.Constraint("Coincident", 24, 2, 20, 3),
    Sketcher.Constraint("Coincident", 27, 2, 16, 3),
    Sketcher.Constraint("Coincident", 28, 2, 14, 3),
    Sketcher.Constraint("Coincident", 31, 2, 10, 3),
    Sketcher.Constraint("Coincident", 34, 2, 5, 3),
    Sketcher.Constraint("Coincident", 35, 2, 3, 3),
    Sketcher.Constraint("Coincident", 61, 2, 58, 3),
    Sketcher.Constraint("Coincident", 64, 2, 54, 3),
    Sketcher.Constraint("Coincident", 65, 2, 52, 3),
    Sketcher.Constraint("Coincident", 68, 2, 48, 3),
    Sketcher.Constraint("Coincident", 72, 2, 42, 3),
    Sketcher.Constraint("Coincident", 73, 2, 40, 3),
    Sketcher.Constraint("Equal", 5, 10),
    Sketcher.Constraint("Equal", 12, 18),
    Sketcher.Constraint("Equal", 8, 22),
    Sketcher.Constraint("Equal", 6, 39),
    Sketcher.Constraint("Equal", 20, 40),
    Sketcher.Constraint("Equal", 1, 44),
    Sketcher.Constraint("Equal", 22, 46),
    Sketcher.Constraint("Equal", 42, 48),
    Sketcher.Constraint("Equal", 18, 50),
    Sketcher.Constraint("Equal", 50, 56),
    Sketcher.Constraint("Equal", 46, 60),
    Sketcher.Constraint("Symmetric", 5, 3, 40, 3, -2),
    Sketcher.Constraint("Symmetric", 1, 3, 44, 3, -2),
    Sketcher.Constraint("Symmetric", 20, 3, 48, 3, -2),
    Sketcher.Constraint("Symmetric", 16, 3, 52, 3, -2),
    Sketcher.Constraint("Symmetric", 12, 3, 56, 3, -2),
    Sketcher.Constraint("Horizontal", 10, 3, 58, 3),
    Sketcher.Constraint("Vertical", 12, 3, 18, 3),
    Sketcher.Constraint("Equal", 66, 11),
    Sketcher.Constraint("Equal", 11, 19),
    Sketcher.Constraint("Radius", 3, 2.0),
    Sketcher.Constraint("Radius", 1, 6.5),
    Sketcher.Constraint("Radius", 6, 30.5),
    Sketcher.Constraint("Radius", 8, 1.5),
    Sketcher.Constraint("Radius", 12, 5.5),
    Sketcher.Constraint("DistanceX", 24, 2, 24, 1, 32.0),
    Sketcher.Constraint("DistanceX", 32, 1, 32, 2, 39.0),
    Sketcher.Constraint("DistanceY", 0, 1, 0, 2, 48.0),
    Sketcher.Constraint("DistanceY", 7, 1, 7, 2, 12.0),
    Sketcher.Constraint("DistanceY", 15, 2, 15, 1, 84.0),
    Sketcher.Constraint("DistanceX", 13, 2, 13, 1, 3.5),
    Sketcher.Constraint("DistanceY", 1, 3, -1, 1, 44.0),
    Sketcher.Constraint("DistanceX", 2, 1, 2, 2, 24.75),
])
pad2 = doc.addObject("PartDesign::Pad", "Pad001")
body.addObject(pad2)
pad2.Profile = sketch2
pad2.Length = 2
pad2.Reversed = True

doc.recompute()
